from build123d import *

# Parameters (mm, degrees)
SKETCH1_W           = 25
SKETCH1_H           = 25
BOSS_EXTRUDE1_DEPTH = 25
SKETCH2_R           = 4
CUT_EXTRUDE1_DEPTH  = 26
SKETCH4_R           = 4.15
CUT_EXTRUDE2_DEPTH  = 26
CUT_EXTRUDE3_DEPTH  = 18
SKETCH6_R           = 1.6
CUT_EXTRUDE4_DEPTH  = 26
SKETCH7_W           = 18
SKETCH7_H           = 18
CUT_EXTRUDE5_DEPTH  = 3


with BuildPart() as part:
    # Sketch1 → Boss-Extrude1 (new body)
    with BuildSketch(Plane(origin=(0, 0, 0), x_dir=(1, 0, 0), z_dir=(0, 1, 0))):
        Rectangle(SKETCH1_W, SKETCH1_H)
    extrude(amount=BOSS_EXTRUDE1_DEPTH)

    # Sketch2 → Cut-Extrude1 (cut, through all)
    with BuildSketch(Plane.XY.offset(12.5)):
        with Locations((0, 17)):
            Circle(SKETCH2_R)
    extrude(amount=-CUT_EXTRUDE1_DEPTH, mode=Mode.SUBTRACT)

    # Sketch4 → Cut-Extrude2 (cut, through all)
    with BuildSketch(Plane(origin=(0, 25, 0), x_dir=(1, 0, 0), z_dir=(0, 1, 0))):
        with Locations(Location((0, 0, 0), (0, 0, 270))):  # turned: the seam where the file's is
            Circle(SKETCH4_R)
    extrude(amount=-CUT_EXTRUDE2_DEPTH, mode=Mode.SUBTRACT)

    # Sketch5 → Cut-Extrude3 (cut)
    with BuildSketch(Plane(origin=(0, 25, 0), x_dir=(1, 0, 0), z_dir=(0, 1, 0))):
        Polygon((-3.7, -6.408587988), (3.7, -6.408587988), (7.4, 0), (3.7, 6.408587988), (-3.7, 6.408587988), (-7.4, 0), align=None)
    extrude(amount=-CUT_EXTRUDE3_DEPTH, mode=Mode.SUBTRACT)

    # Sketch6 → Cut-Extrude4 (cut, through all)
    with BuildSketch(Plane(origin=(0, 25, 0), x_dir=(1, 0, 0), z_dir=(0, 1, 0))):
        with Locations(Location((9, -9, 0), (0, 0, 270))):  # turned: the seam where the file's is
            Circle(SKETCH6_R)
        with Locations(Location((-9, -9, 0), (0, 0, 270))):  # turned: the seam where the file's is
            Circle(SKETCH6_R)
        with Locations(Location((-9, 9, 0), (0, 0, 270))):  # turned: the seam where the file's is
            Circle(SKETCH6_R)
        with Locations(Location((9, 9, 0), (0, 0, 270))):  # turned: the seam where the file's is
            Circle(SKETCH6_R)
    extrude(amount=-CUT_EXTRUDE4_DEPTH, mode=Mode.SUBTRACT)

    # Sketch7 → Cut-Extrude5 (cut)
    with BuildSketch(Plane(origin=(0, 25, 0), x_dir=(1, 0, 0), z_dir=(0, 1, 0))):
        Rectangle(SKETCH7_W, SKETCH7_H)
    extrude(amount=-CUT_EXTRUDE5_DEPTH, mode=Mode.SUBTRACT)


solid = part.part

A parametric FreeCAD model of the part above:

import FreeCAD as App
import Part
import Sketcher
Q = App.Units.Quantity

doc = App.newDocument("Part")
params = doc.addObject("Spreadsheet::Sheet", "Params")
for row, (alias, value) in enumerate([
    ("sketch1_width", "25 mm"),
    ("pad1_length", "25 mm"),
    ("sketch2_diameter", "8 mm"),
    ("sketch3_diameter", "8.3 mm"),
    ("sketch4_width", "7.4 mm"),
    ("sketch4_length", "7.4 mm"),
    ("pocket3_length", "18 mm"),
    ("sketch5_diameter", "3.2 mm"),
    ("sketch6_width", "18 mm"),
    ("pocket5_length", "3 mm"),
], start=1):
    params.set(f"A{row}", alias)
    params.set(f"B{row}", "=" + value)
    params.setAlias(f"B{row}", alias)

body = doc.addObject("PartDesign::Body", "Body")

# Sketch on XZ plane
sketch1 = body.newObject("Sketcher::SketchObject", "Sketch")
sketch1.AttachmentSupport = (doc.getObject("XZ_Plane"), [""])
sketch1.MapMode = "FlatFace"
sketch1.addGeometry(Part.LineSegment(App.Vector(-12.5, -12.5, 0), App.Vector(-12.5, 12.5, 0)), False)
sketch1.addGeometry(Part.LineSegment(App.Vector(-12.5, 12.5, 0), App.Vector(12.5, 12.5, 0)), False)
sketch1.addGeometry(Part.LineSegment(App.Vector(12.5, 12.5, 0), App.Vector(12.5, -12.5, 0)), False)
sketch1.addGeometry(Part.LineSegment(App.Vector(12.5, -12.5, 0), App.Vector(-12.5, -12.5, 0)), False)
sketch1.addConstraint(Sketcher.Constraint("Coincident", 0, 2, 1, 1))
sketch1.addConstraint(Sketcher.Constraint("Coincident", 1, 2, 2, 1))
sketch1.addConstraint(Sketcher.Constraint("Coincident", 2, 2, 3, 1))
sketch1.addConstraint(Sketcher.Constraint("Coincident", 3, 2, 0, 1))
sketch1.addConstraint(Sketcher.Constraint("Vertical", 0))
sketch1.addConstraint(Sketcher.Constraint("Horizontal", 1))
sketch1.addConstraint(Sketcher.Constraint("Vertical", 2))
sketch1.addConstraint(Sketcher.Constraint("Horizontal", 3))
sketch1.addConstraint(Sketcher.Constraint("Symmetric", 0, 2, 2, 2, -1, 1))
sketch1.addConstraint(Sketcher.Constraint("Equal", 3, 0))
sketch1.addConstraint(Sketcher.Constraint("DistanceX", 1, 1, 1, 2, Q("25 mm")))
sketch1.setExpression("Constraints[10]", "Params.sketch1_width")
pad1 = body.newObject("PartDesign::Pad", "Pad")
pad1.Profile = sketch1
pad1.setExpression("Length", "Params.pad1_length")
pad1.Reversed = True

# Sketch on XY plane
sketch2 = body.newObject("Sketcher::SketchObject", "Sketch001")
sketch2.AttachmentSupport = (doc.getObject("XY_Plane"), [""])
sketch2.MapMode = "FlatFace"
sketch2.AttachmentOffset = App.Placement(App.Vector(0, 0, 12.5), App.Rotation())
sketch2.addGeometry(Part.Circle(App.Vector(0, 17, 0), App.Vector(0, 0, 1), 4), False)
sketch2.addConstraint(Sketcher.Constraint("PointOnObject", 0, 3, -2))
sketch2.addConstraint(Sketcher.Constraint("Diameter", 0, Q("8 mm")))
sketch2.addConstraint(Sketcher.Constraint("DistanceY", -1, 1, 0, 3, Q("17 mm")))
sketch2.setExpression("Constraints[1]", "Params.sketch2_diameter")
pocket1 = body.newObject("PartDesign::Pocket", "Pocket")
pocket1.Profile = sketch2
pocket1.Type = "ThroughAll"

# Sketch on XZ plane
sketch3 = body.newObject("Sketcher::SketchObject", "Sketch002")
sketch3.AttachmentSupport = (doc.getObject("XZ_Plane"), [""])
sketch3.MapMode = "FlatFace"
sketch3.AttachmentOffset = App.Placement(App.Vector(0, 0, -25), App.Rotation())
sketch3.addGeometry(Part.Circle(App.Vector(0, 0, 0), App.Vector(0, 0, 1), 4.15), False)
sketch3.addConstraint(Sketcher.Constraint("Coincident", 0, 3, -1, 1))
sketch3.addConstraint(Sketcher.Constraint("Diameter", 0, Q("8.3 mm")))
sketch3.setExpression("Constraints[1]", "Params.sketch3_diameter")
pocket2 = body.newObject("PartDesign::Pocket", "Pocket001")
pocket2.Profile = sketch3
pocket2.Type = "ThroughAll"
pocket2.Reversed = True

# Sketch on XZ plane
sketch4 = body.newObject("Sketcher::SketchObject", "Sketch003")
sketch4.AttachmentSupport = (doc.getObject("XZ_Plane"), [""])
sketch4.MapMode = "FlatFace"
sketch4.AttachmentOffset = App.Placement(App.Vector(0, 0, -25), App.Rotation())
sketch4.addGeometry(Part.LineSegment(App.Vector(-3.7, 6.408588, 0), App.Vector(3.7, 6.408588, 0)), False)
sketch4.addGeometry(Part.LineSegment(App.Vector(3.7, 6.408588, 0), App.Vector(7.4, 0, 0)), False)
sketch4.addGeometry(Part.LineSegment(App.Vector(7.4, 0, 0), App.Vector(3.7, -6.408588, 0)), False)
sketch4.addGeometry(Part.LineSegment(App.Vector(3.7, -6.408588, 0), App.Vector(-3.7, -6.408588, 0)), False)
sketch4.addGeometry(Part.LineSegment(App.Vector(-3.7, -6.408588, 0), App.Vector(-7.4, 0, 0)), False)
sketch4.addGeometry(Part.LineSegment(App.Vector(-7.4, 0, 0), App.Vector(-3.7, 6.408588, 0)), False)
sketch4.addConstraint(Sketcher.Constraint("Coincident", 0, 2, 1, 1))
sketch4.addConstraint(Sketcher.Constraint("Coincident", 1, 2, 2, 1))
sketch4.addConstraint(Sketcher.Constraint("Coincident", 2, 2, 3, 1))
sketch4.addConstraint(Sketcher.Constraint("Coincident", 3, 2, 4, 1))
sketch4.addConstraint(Sketcher.Constraint("Coincident", 4, 2, 5, 1))
sketch4.addConstraint(Sketcher.Constraint("Coincident", 5, 2, 0, 1))
sketch4.addConstraint(Sketcher.Constraint("Horizontal", 0))
sketch4.addConstraint(Sketcher.Constraint("Horizontal", 3))
sketch4.addConstraint(Sketcher.Constraint("Symmetric", 0, 2, 3, 2, -1, 1))
sketch4.addConstraint(Sketcher.Constraint("Symmetric", 1, 2, 4, 2, -1, 1))
sketch4.addConstraint(Sketcher.Constraint("PointOnObject", 1, 2, -1))
sketch4.addConstraint(Sketcher.Constraint("Parallel", 2, 5))
sketch4.addConstraint(Sketcher.Constraint("Vertical", 0, 2, 2, 2))
sketch4.addConstraint(Sketcher.Constraint("Angle", 1, Q("-60 deg")))
sketch4.addConstraint(Sketcher.Constraint("DistanceX", 0, 1, 0, 2, Q("7.4 mm")))
sketch4.addConstraint(Sketcher.Constraint("Distance", 1, Q("7.4 mm")))
sketch4.setExpression("Constraints[14]", "Params.sketch4_width")
sketch4.setExpression("Constraints[15]", "Params.sketch4_length")
pocket3 = body.newObject("PartDesign::Pocket", "Pocket002")
pocket3.Profile = sketch4
pocket3.setExpression("Length", "Params.pocket3_length")
pocket3.Reversed = True

# Sketch on XZ plane
sketch5 = body.newObject("Sketcher::SketchObject", "Sketch004")
sketch5.AttachmentSupport = (doc.getObject("XZ_Plane"), [""])
sketch5.MapMode = "FlatFace"
sketch5.AttachmentOffset = App.Placement(App.Vector(0, 0, -25), App.Rotation())
sketch5.addGeometry(Part.Circle(App.Vector(9, 9, 0), App.Vector(0, 0, 1), 1.6), False)
sketch5.addGeometry(Part.Circle(App.Vector(-9, 9, 0), App.Vector(0, 0, 1), 1.6), False)
sketch5.addGeometry(Part.Circle(App.Vector(-9, -9, 0), App.Vector(0, 0, 1), 1.6), False)
sketch5.addGeometry(Part.Circle(App.Vector(9, -9, 0), App.Vector(0, 0, 1), 1.6), False)
sketch5.addConstraint(Sketcher.Constraint("Equal", 0, 1))
sketch5.addConstraint(Sketcher.Constraint("Equal", 1, 2))
sketch5.addConstraint(Sketcher.Constraint("Equal", 2, 3))
sketch5.addConstraint(Sketcher.Constraint("Symmetric", 0, 3, 2, 3, -1, 1))
sketch5.addConstraint(Sketcher.Constraint("Symmetric", 1, 3, 3, 3, -1, 1))
sketch5.addConstraint(Sketcher.Constraint("Symmetric", 0, 3, 1, 3, -2))
sketch5.addConstraint(Sketcher.Constraint("Diameter", 0, Q("3.2 mm")))
sketch5.addConstraint(Sketcher.Constraint("DistanceX", -1, 1, 0, 3, Q("9 mm")))
sketch5.addConstraint(Sketcher.Constraint("DistanceY", -1, 1, 0, 3, Q("9 mm")))
sketch5.setExpression("Constraints[6]", "Params.sketch5_diameter")
pocket4 = body.newObject("PartDesign::Pocket", "Pocket003")
pocket4.Profile = sketch5
pocket4.Type = "ThroughAll"
pocket4.Reversed = True

# Sketch on XZ plane
sketch6 = body.newObject("Sketcher::SketchObject", "Sketch005")
sketch6.AttachmentSupport = (doc.getObject("XZ_Plane"), [""])
sketch6.MapMode = "FlatFace"
sketch6.AttachmentOffset = App.Placement(App.Vector(0, 0, -25), App.Rotation())
sketch6.addGeometry(Part.LineSegment(App.Vector(-9, -9, 0), App.Vector(-9, 9, 0)), False)
sketch6.addGeometry(Part.LineSegment(App.Vector(-9, 9, 0), App.Vector(9, 9, 0)), False)
sketch6.addGeometry(Part.LineSegment(App.Vector(9, 9, 0), App.Vector(9, -9, 0)), False)
sketch6.addGeometry(Part.LineSegment(App.Vector(9, -9, 0), App.Vector(-9, -9, 0)), False)
sketch6.addConstraint(Sketcher.Constraint("Coincident", 0, 2, 1, 1))
sketch6.addConstraint(Sketcher.Constraint("Coincident", 1, 2, 2, 1))
sketch6.addConstraint(Sketcher.Constraint("Coincident", 2, 2, 3, 1))
sketch6.addConstraint(Sketcher.Constraint("Coincident", 3, 2, 0, 1))
sketch6.addConstraint(Sketcher.Constraint("Vertical", 0))
sketch6.addConstraint(Sketcher.Constraint("Horizontal", 1))
sketch6.addConstraint(Sketcher.Constraint("Vertical", 2))
sketch6.addConstraint(Sketcher.Constraint("Horizontal", 3))
sketch6.addConstraint(Sketcher.Constraint("Symmetric", 0, 2, 2, 2, -1, 1))
sketch6.addConstraint(Sketcher.Constraint("Equal", 3, 0))
sketch6.addConstraint(Sketcher.Constraint("DistanceX", 1, 1, 1, 2, Q("18 mm")))
sketch6.setExpression("Constraints[10]", "Params.sketch6_width")
pocket5 = body.newObject("PartDesign::Pocket", "Pocket004")
pocket5.Profile = sketch6
pocket5.setExpression("Length", "Params.pocket5_length")
pocket5.Reversed = True

doc.recompute()
